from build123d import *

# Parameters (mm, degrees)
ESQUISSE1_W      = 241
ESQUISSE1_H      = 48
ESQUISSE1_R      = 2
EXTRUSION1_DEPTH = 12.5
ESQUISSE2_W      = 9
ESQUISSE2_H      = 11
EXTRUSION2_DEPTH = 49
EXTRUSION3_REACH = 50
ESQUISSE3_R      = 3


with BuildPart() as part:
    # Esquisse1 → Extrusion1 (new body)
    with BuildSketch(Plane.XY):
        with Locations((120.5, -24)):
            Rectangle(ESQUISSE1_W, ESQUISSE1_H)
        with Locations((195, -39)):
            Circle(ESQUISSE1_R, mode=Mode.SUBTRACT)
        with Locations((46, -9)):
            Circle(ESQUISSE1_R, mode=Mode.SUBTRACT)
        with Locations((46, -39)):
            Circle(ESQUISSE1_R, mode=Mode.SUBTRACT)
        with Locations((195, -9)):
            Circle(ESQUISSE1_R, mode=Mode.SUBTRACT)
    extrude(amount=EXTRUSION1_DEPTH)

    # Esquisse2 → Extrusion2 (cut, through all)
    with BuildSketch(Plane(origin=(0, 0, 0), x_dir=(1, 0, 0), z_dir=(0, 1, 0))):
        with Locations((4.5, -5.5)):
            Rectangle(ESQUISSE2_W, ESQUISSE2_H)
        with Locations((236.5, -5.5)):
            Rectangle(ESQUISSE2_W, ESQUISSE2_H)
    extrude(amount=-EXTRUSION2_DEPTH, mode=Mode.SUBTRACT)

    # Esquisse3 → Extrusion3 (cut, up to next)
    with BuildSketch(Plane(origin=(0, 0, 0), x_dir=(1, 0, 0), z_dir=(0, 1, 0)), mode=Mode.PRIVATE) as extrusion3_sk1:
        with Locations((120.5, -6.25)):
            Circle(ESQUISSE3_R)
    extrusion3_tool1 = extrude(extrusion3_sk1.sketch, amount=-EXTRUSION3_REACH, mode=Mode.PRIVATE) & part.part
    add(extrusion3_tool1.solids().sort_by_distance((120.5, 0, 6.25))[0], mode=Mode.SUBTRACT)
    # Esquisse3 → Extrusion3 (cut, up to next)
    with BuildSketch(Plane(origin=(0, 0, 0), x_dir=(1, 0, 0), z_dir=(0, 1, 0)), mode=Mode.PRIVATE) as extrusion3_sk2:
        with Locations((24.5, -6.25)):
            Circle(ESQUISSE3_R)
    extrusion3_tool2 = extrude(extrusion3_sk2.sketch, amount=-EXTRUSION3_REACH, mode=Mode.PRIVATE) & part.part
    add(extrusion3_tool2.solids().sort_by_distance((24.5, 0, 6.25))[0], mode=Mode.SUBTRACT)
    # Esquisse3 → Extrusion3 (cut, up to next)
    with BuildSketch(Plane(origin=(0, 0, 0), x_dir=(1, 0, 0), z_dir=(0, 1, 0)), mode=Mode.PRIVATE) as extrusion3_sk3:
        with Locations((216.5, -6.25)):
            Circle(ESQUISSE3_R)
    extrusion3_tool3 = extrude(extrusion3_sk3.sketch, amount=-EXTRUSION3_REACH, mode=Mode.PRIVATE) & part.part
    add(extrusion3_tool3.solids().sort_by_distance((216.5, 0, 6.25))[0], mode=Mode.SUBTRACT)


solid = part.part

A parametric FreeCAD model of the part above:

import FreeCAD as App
import Part
import Sketcher

V = App.Vector

doc = App.newDocument("Part")
params = doc.addObject("Spreadsheet::Sheet", "Params")
for row, (alias, value) in enumerate([
    ("sketch1_diameter", "4 mm"),
    ("sketch1_width", "241 mm"),
    ("sketch1_height", "48 mm"),
    ("pad1_length", "12.5 mm"),
    ("sketch2_width", "9 mm"),
    ("sketch2_height", "11 mm"),
    ("sketch3_diameter", "6 mm"),
    ("sketch4_diameter", "6 mm"),
    ("sketch5_diameter", "6 mm"),
], start=1):
    params.set(f"A{row}", alias)
    params.set(f"B{row}", "=" + value)
    params.setAlias(f"B{row}", alias)

body = doc.addObject("PartDesign::Body", "Body")

# Sketch on XY plane
sketch1 = body.newObject("Sketcher::SketchObject", "Sketch")
sketch1.AttachmentSupport = (doc.getObject("XY_Plane"), [""])
sketch1.MapMode = "FlatFace"
sketch1.addGeometry([
    Part.LineSegment(V(0, 0, 0), V(0, -48, 0)),  # 0
    Part.LineSegment(V(0, -48, 0), V(241, -48, 0)),  # 1
    Part.LineSegment(V(241, -48, 0), V(241, 0, 0)),  # 2
    Part.LineSegment(V(241, 0, 0), V(0, 0, 0)),  # 3
    Part.Circle(V(46, -39, 0), V(0, 0, 1), 2),  # 4
    Part.Circle(V(195, -39, 0), V(0, 0, 1), 2),  # 5
    Part.Circle(V(46, -9, 0), V(0, 0, 1), 2),  # 6
    Part.Circle(V(195, -9, 0), V(0, 0, 1), 2),  # 7
], False)
sketch1.addConstraint([
    Sketcher.Constraint("Coincident", 0, 2, 1, 1),
    Sketcher.Constraint("Coincident", 1, 2, 2, 1),
    Sketcher.Constraint("Coincident", 2, 2, 3, 1),
    Sketcher.Constraint("Coincident", 3, 2, 0, 1),
    Sketcher.Constraint("Vertical", 0),
    Sketcher.Constraint("Horizontal", 1),
    Sketcher.Constraint("Vertical", 2),
    Sketcher.Constraint("Horizontal", 3),
    Sketcher.Constraint("Coincident", 3, 2, -1, 1),
    Sketcher.Constraint("Equal", 4, 5),
    Sketcher.Constraint("Equal", 5, 6),
    Sketcher.Constraint("Equal", 6, 7),
    Sketcher.Constraint("Horizontal", 4, 3, 5, 3),
    Sketcher.Constraint("Horizontal", 6, 3, 7, 3),
    Sketcher.Constraint("Vertical", 4, 3, 6, 3),
    Sketcher.Constraint("Vertical", 5, 3, 7, 3),
    Sketcher.Constraint("Diameter", 4, 4.0),
    Sketcher.Constraint("DistanceX", 1, 1, 1, 2, 241.0),
    Sketcher.Constraint("DistanceY", 0, 2, 0, 1, 48.0),
    Sketcher.Constraint("DistanceX", -1, 1, 4, 3, 46.0),
    Sketcher.Constraint("DistanceY", 4, 3, -1, 1, 39.0),
    Sketcher.Constraint("DistanceX", -1, 1, 5, 3, 195.0),
    Sketcher.Constraint("DistanceY", 6, 3, -1, 1, 9.0),
])
sketch1.setExpression("Constraints[16]", "Params.sketch1_diameter")
sketch1.setExpression("Constraints[17]", "Params.sketch1_width")
sketch1.setExpression("Constraints[18]", "Params.sketch1_height")
pad1 = body.newObject("PartDesign::Pad", "Pad")
pad1.Profile = sketch1
pad1.setExpression("Length", "Params.pad1_length")

# Sketch on XZ plane
sketch2 = body.newObject("Sketcher::SketchObject", "Sketch001")
sketch2.AttachmentSupport = (doc.getObject("XZ_Plane"), [""])
sketch2.MapMode = "FlatFace"
sketch2.addGeometry([
    Part.LineSegment(V(0, 0, 0), V(0, 11, 0)),  # 0
    Part.LineSegment(V(0, 11, 0), V(9, 11, 0)),  # 1
    Part.LineSegment(V(9, 11, 0), V(9, 0, 0)),  # 2
    Part.LineSegment(V(9, 0, 0), V(0, 0, 0)),  # 3
    Part.LineSegment(V(232, 0, 0), V(232, 11, 0)),  # 4
    Part.LineSegment(V(232, 11, 0), V(241, 11, 0)),  # 5
    Part.LineSegment(V(241, 11, 0), V(241, 0, 0)),  # 6
    Part.LineSegment(V(241, 0, 0), V(232, 0, 0)),  # 7
], False)
sketch2.addConstraint([
    Sketcher.Constraint("Coincident", 0, 2, 1, 1),
    Sketcher.Constraint("Coincident", 1, 2, 2, 1),
    Sketcher.Constraint("Coincident", 2, 2, 3, 1),
    Sketcher.Constraint("Coincident", 3, 2, 0, 1),
    Sketcher.Constraint("Coincident", 4, 2, 5, 1),
    Sketcher.Constraint("Coincident", 5, 2, 6, 1),
    Sketcher.Constraint("Coincident", 6, 2, 7, 1),
    Sketcher.Constraint("Coincident", 7, 2, 4, 1),
    Sketcher.Constraint("Vertical", 0),
    Sketcher.Constraint("Horizontal", 1),
    Sketcher.Constraint("Vertical", 2),
    Sketcher.Constraint("Horizontal", 3),
    Sketcher.Constraint("Vertical", 4),
    Sketcher.Constraint("Horizontal", 5),
    Sketcher.Constraint("Vertical", 6),
    Sketcher.Constraint("Horizontal", 7),
    Sketcher.Constraint("Coincident", 3, 2, -1, 1),
    Sketcher.Constraint("PointOnObject", 6, 2, -1),
    Sketcher.Constraint("Horizontal", 1, 2, 4, 2),
    Sketcher.Constraint("Equal", 3, 5),
    Sketcher.Constraint("DistanceX", 1, 1, 1, 2, 9.0),
    Sketcher.Constraint("DistanceY", 0, 1, 0, 2, 11.0),
    Sketcher.Constraint("DistanceX", -1, 1, 4, 2, 232.0),
])
sketch2.setExpression("Constraints[20]", "Params.sketch2_width")
sketch2.setExpression("Constraints[21]", "Params.sketch2_height")
pocket1 = body.newObject("PartDesign::Pocket", "Pocket")
pocket1.Profile = sketch2
pocket1.Type = "ThroughAll"
pocket1.Reversed = True

# Sketch on XZ plane
sketch3 = body.newObject("Sketcher::SketchObject", "Sketch002")
sketch3.AttachmentSupport = (doc.getObject("XZ_Plane"), [""])
sketch3.MapMode = "FlatFace"
sketch3.addGeometry(Part.Circle(V(120.5, 6.2, 0), V(0, 0, 1), 3), False)
sketch3.addConstraint([
    Sketcher.Constraint("Diameter", 0, 6.0),
    Sketcher.Constraint("DistanceX", -1, 1, 0, 3, 120.5),
    Sketcher.Constraint("DistanceY", -1, 1, 0, 3, 6.25),
])
sketch3.setExpression("Constraints[0]", "Params.sketch3_diameter")
pocket2 = body.newObject("PartDesign::Pocket", "Pocket001")
pocket2.Profile = sketch3
pocket2.Type = "UpToFirst"
pocket2.Reversed = True

# Sketch on XZ plane
sketch4 = body.newObject("Sketcher::SketchObject", "Sketch003")
sketch4.AttachmentSupport = (doc.getObject("XZ_Plane"), [""])
sketch4.MapMode = "FlatFace"
sketch4.addGeometry(Part.Circle(V(24.5, 6.2, 0), V(0, 0, 1), 3), False)
sketch4.addConstraint([
    Sketcher.Constraint("Diameter", 0, 6.0),
    Sketcher.Constraint("DistanceX", -1, 1, 0, 3, 24.5),
    Sketcher.Constraint("DistanceY", -1, 1, 0, 3, 6.25),
])
sketch4.setExpression("Constraints[0]", "Params.sketch4_diameter")
pocket3 = body.newObject("PartDesign::Pocket", "Pocket002")
pocket3.Profile = sketch4
pocket3.Type = "UpToFirst"
pocket3.Reversed = True

# Sketch on XZ plane
sketch5 = body.newObject("Sketcher::SketchObject", "Sketch004")
sketch5.AttachmentSupport = (doc.getObject("XZ_Plane"), [""])
sketch5.MapMode = "FlatFace"
sketch5.addGeometry(Part.Circle(V(216.5, 6.2, 0), V(0, 0, 1), 3), False)
sketch5.addConstraint([
    Sketcher.Constraint("Diameter", 0, 6.0),
    Sketcher.Constraint("DistanceX", -1, 1, 0, 3, 216.5),
    Sketcher.Constraint("DistanceY", -1, 1, 0, 3, 6.25),
])
sketch5.setExpression("Constraints[0]", "Params.sketch5_diameter")
pocket4 = body.newObject("PartDesign::Pocket", "Pocket003")
pocket4.Profile = sketch5
pocket4.Type = "UpToFirst"
pocket4.Reversed = True

doc.recompute()
